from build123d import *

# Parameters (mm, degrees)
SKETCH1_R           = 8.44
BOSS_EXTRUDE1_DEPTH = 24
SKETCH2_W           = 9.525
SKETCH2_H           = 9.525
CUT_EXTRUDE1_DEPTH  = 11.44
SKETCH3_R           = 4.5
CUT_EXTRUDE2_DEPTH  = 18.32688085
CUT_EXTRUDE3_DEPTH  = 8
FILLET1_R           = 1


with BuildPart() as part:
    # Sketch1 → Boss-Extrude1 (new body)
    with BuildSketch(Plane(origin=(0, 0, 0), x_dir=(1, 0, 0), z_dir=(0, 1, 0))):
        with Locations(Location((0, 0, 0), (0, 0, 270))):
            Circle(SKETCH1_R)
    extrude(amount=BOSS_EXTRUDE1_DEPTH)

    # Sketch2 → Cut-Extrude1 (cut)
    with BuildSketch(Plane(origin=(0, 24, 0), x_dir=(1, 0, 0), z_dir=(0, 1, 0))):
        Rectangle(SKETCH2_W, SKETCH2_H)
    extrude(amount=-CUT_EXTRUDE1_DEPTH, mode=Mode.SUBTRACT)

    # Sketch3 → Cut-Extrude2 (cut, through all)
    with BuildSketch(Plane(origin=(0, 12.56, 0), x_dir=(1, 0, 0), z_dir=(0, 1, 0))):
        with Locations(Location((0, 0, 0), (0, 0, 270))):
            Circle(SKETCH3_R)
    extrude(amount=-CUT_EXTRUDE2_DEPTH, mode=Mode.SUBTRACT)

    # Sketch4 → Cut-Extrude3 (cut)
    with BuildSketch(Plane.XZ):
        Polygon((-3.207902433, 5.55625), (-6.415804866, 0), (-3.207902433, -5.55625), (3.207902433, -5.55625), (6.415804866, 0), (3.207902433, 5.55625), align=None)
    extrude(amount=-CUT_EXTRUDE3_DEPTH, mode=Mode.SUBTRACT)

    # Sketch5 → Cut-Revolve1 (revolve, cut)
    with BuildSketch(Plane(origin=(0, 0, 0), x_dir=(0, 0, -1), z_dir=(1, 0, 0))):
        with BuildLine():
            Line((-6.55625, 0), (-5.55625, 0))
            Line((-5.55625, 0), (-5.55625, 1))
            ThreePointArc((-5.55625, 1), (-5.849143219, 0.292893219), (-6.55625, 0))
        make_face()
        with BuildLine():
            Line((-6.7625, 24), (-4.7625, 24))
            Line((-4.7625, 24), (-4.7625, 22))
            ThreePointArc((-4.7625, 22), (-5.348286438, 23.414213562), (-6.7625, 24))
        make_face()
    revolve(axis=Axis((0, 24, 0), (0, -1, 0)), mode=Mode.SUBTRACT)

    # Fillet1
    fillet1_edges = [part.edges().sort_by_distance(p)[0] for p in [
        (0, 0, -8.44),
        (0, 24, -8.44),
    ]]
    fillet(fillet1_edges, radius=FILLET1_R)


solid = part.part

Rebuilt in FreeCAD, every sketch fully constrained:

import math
import FreeCAD as App
import Part
import Sketcher
Q = App.Units.Quantity


def edges_at(feature, points):
    """Names of the edges that pass closest to the given points."""
    edges = feature.Shape.Edges
    near = lambda p: min(range(len(edges)), key=lambda i: edges[i].distToShape(Part.Vertex(*p))[0])
    return sorted({f"Edge{near(p) + 1}" for p in points})


def add_polygon(sketch, points):
    """Adds a closed chain of lines whose ends are joined by coincident constraints."""
    first, n = sketch.GeometryCount, len(points)
    for a, b in zip(points, points[1:] + points[:1]):
        sketch.addGeometry(Part.LineSegment(App.Vector(*a, 0), App.Vector(*b, 0)), False)
    for i in range(n):
        sketch.addConstraint(Sketcher.Constraint("Coincident", first + i, 2, first + (i + 1) % n, 1))

doc = App.newDocument("Part")
params = doc.addObject("Spreadsheet::Sheet", "Params")
for row, (alias, value) in enumerate([
    ("sketch1_diameter", "16.88 mm"),
    ("pad1_length", "24 mm"),
    ("pocket1_length", "11.44 mm"),
    ("sketch3_diameter", "9 mm"),
    ("pocket3_length", "8 mm"),
    ("sketch5_radius", "1 mm"),
    ("sketch5_radius2", "2 mm"),
    ("groove_angle", "360 deg"),
    ("fillet_radius", "1 mm"),
], start=1):
    params.set(f"A{row}", alias)
    params.set(f"B{row}", "=" + value)
    params.setAlias(f"B{row}", alias)

body = doc.addObject("PartDesign::Body", "Body")

sketch1 = body.newObject("Sketcher::SketchObject", "Sketch")
sketch1.AttachmentSupport = (doc.getObject("XZ_Plane"), [""])
sketch1.MapMode = "FlatFace"
sketch1.addGeometry(Part.Circle(App.Vector(0, 0, 0), App.Vector(0, 0, 1), 8.44), False)
sketch1.addConstraint([
    Sketcher.Constraint("Coincident", 0, 3, -1, 1),
    Sketcher.Constraint("Diameter", 0, 16.88),
])
sketch1.setExpression("Constraints[1]", "Params.sketch1_diameter")
pad1 = body.newObject("PartDesign::Pad", "Pad")
pad1.Profile = sketch1
pad1.setExpression("Length", "Params.pad1_length")
pad1.Reversed = True

sketch2 = body.newObject("Sketcher::SketchObject", "Sketch001")
sketch2.AttachmentSupport = (doc.getObject("XZ_Plane"), [""])
sketch2.MapMode = "FlatFace"
sketch2.AttachmentOffset = App.Placement(App.Vector(0, 0, -24), App.Rotation())
add_polygon(sketch2, [(-4.7625, -4.7625), (-4.7625, 4.7625), (4.7625, 4.7625), (4.7625, -4.7625)])
sketch2.addConstraint([
    Sketcher.Constraint("Vertical", 0),
    Sketcher.Constraint("Horizontal", 1),
    Sketcher.Constraint("Vertical", 2),
    Sketcher.Constraint("Horizontal", 3),
    Sketcher.Constraint("Symmetric", 0, 2, 2, 2, -1, 1),
    Sketcher.Constraint("Equal", 3, 0),
    Sketcher.Constraint("DistanceX", 1, 1, 1, 2, 9.525),
])
pocket1 = body.newObject("PartDesign::Pocket", "Pocket")
pocket1.Profile = sketch2
pocket1.setExpression("Length", "Params.pocket1_length")
pocket1.Reversed = True

sketch3 = body.newObject("Sketcher::SketchObject", "Sketch002")
sketch3.AttachmentSupport = (doc.getObject("XZ_Plane"), [""])
sketch3.MapMode = "FlatFace"
sketch3.AttachmentOffset = App.Placement(App.Vector(0, 0, -12.56), App.Rotation())
sketch3.addGeometry(Part.Circle(App.Vector(0, 0, 0), App.Vector(0, 0, 1), 4.5), False)
sketch3.addConstraint([
    Sketcher.Constraint("Coincident", 0, 3, -1, 1),
    Sketcher.Constraint("Diameter", 0, 9.0),
])
sketch3.setExpression("Constraints[1]", "Params.sketch3_diameter")
pocket2 = body.newObject("PartDesign::Pocket", "Pocket001")
pocket2.Profile = sketch3
pocket2.Type = "ThroughAll"
pocket2.Reversed = True

sketch4 = body.newObject("Sketcher::SketchObject", "Sketch003")
sketch4.AttachmentSupport = (doc.getObject("XZ_Plane"), [""])
sketch4.MapMode = "FlatFace"
add_polygon(sketch4, [(-3.207902, 5.55625), (-6.415805, 0), (-3.207902, -5.55625), (3.207902, -5.55625), (6.415805, 0), (3.207902, 5.55625)])
sketch4.addConstraint([
    Sketcher.Constraint("Horizontal", 2),
    Sketcher.Constraint("Horizontal", 5),
    Sketcher.Constraint("Symmetric", 0, 2, 3, 2, -1, 1),
    Sketcher.Constraint("Symmetric", 1, 2, 4, 2, -1, 1),
    Sketcher.Constraint("PointOnObject", 0, 2, -1),
    Sketcher.Constraint("Parallel", 0, 3),
    Sketcher.Constraint("Vertical", 2, 2, 4, 2),
    Sketcher.Constraint("Angle", 0, Q("-120 deg")),
    Sketcher.Constraint("DistanceY", 2, 2, 4, 2, 11.1125),
    Sketcher.Constraint("DistanceX", 2, 1, 2, 2, 6.415805),
])
pocket3 = body.newObject("PartDesign::Pocket", "Pocket002")
pocket3.Profile = sketch4
pocket3.setExpression("Length", "Params.pocket3_length")

sketch5 = body.newObject("Sketcher::SketchObject", "Sketch004")
sketch5.AttachmentSupport = (doc.getObject("YZ_Plane"), [""])
sketch5.MapMode = "FlatFace"
sketch5.addGeometry([
    Part.LineSegment(App.Vector(0, 6.55625, 0), App.Vector(0, 5.55625, 0)),
    Part.LineSegment(App.Vector(0, 5.55625, 0), App.Vector(1, 5.55625, 0)),
    Part.ArcOfCircle(Part.Circle(App.Vector(1, 6.55625, 0), App.Vector(0, 0, 1), 1), math.radians(-180), math.radians(-90)),
    Part.LineSegment(App.Vector(24, 4.7625, 0), App.Vector(24, 6.7625, 0)),
    Part.ArcOfCircle(Part.Circle(App.Vector(22, 6.7625, 0), App.Vector(0, 0, 1), 2), math.radians(-90), math.radians(0)),
    Part.LineSegment(App.Vector(22, 4.7625, 0), App.Vector(24, 4.7625, 0)),
], False)
sketch5.addConstraint([
    Sketcher.Constraint("Coincident", 0, 2, 1, 1),
    Sketcher.Constraint("Tangent", 1, 2, 2, 2),
    Sketcher.Constraint("Tangent", 2, 1, 0, 1),
    Sketcher.Constraint("Tangent", 3, 2, 4, 2),
    Sketcher.Constraint("Tangent", 4, 1, 5, 1),
    Sketcher.Constraint("Coincident", 5, 2, 3, 1),
    Sketcher.Constraint("Vertical", 0),
    Sketcher.Constraint("Horizontal", 1),
    Sketcher.Constraint("Vertical", 3),
    Sketcher.Constraint("Horizontal", 5),
    Sketcher.Constraint("PointOnObject", 0, 2, -2),
    Sketcher.Constraint("Radius", 2, 1.0),
    Sketcher.Constraint("Radius", 4, 2.0),
    Sketcher.Constraint("DistanceX", -1, 1, 4, 3, 22.0),
    Sketcher.Constraint("DistanceY", -1, 1, 4, 3, 6.7625),
    Sketcher.Constraint("DistanceY", -1, 1, 2, 3, 6.55625),
])
sketch5.setExpression("Constraints[11]", "Params.sketch5_radius")
sketch5.setExpression("Constraints[12]", "Params.sketch5_radius2")
groove = body.newObject("PartDesign::Groove", "Groove")
groove.Profile = sketch5
groove.ReferenceAxis = (sketch5, ["H_Axis"])
groove.setExpression("Angle", "Params.groove_angle")
doc.recompute()

fillet = body.newObject("PartDesign::Fillet", "Fillet")
fillet.Base = (groove, edges_at(groove, [(0, 0, -8.44), (0, 24, -8.44)]))
fillet.setExpression("Radius", "Params.fillet_radius")

doc.recompute()
